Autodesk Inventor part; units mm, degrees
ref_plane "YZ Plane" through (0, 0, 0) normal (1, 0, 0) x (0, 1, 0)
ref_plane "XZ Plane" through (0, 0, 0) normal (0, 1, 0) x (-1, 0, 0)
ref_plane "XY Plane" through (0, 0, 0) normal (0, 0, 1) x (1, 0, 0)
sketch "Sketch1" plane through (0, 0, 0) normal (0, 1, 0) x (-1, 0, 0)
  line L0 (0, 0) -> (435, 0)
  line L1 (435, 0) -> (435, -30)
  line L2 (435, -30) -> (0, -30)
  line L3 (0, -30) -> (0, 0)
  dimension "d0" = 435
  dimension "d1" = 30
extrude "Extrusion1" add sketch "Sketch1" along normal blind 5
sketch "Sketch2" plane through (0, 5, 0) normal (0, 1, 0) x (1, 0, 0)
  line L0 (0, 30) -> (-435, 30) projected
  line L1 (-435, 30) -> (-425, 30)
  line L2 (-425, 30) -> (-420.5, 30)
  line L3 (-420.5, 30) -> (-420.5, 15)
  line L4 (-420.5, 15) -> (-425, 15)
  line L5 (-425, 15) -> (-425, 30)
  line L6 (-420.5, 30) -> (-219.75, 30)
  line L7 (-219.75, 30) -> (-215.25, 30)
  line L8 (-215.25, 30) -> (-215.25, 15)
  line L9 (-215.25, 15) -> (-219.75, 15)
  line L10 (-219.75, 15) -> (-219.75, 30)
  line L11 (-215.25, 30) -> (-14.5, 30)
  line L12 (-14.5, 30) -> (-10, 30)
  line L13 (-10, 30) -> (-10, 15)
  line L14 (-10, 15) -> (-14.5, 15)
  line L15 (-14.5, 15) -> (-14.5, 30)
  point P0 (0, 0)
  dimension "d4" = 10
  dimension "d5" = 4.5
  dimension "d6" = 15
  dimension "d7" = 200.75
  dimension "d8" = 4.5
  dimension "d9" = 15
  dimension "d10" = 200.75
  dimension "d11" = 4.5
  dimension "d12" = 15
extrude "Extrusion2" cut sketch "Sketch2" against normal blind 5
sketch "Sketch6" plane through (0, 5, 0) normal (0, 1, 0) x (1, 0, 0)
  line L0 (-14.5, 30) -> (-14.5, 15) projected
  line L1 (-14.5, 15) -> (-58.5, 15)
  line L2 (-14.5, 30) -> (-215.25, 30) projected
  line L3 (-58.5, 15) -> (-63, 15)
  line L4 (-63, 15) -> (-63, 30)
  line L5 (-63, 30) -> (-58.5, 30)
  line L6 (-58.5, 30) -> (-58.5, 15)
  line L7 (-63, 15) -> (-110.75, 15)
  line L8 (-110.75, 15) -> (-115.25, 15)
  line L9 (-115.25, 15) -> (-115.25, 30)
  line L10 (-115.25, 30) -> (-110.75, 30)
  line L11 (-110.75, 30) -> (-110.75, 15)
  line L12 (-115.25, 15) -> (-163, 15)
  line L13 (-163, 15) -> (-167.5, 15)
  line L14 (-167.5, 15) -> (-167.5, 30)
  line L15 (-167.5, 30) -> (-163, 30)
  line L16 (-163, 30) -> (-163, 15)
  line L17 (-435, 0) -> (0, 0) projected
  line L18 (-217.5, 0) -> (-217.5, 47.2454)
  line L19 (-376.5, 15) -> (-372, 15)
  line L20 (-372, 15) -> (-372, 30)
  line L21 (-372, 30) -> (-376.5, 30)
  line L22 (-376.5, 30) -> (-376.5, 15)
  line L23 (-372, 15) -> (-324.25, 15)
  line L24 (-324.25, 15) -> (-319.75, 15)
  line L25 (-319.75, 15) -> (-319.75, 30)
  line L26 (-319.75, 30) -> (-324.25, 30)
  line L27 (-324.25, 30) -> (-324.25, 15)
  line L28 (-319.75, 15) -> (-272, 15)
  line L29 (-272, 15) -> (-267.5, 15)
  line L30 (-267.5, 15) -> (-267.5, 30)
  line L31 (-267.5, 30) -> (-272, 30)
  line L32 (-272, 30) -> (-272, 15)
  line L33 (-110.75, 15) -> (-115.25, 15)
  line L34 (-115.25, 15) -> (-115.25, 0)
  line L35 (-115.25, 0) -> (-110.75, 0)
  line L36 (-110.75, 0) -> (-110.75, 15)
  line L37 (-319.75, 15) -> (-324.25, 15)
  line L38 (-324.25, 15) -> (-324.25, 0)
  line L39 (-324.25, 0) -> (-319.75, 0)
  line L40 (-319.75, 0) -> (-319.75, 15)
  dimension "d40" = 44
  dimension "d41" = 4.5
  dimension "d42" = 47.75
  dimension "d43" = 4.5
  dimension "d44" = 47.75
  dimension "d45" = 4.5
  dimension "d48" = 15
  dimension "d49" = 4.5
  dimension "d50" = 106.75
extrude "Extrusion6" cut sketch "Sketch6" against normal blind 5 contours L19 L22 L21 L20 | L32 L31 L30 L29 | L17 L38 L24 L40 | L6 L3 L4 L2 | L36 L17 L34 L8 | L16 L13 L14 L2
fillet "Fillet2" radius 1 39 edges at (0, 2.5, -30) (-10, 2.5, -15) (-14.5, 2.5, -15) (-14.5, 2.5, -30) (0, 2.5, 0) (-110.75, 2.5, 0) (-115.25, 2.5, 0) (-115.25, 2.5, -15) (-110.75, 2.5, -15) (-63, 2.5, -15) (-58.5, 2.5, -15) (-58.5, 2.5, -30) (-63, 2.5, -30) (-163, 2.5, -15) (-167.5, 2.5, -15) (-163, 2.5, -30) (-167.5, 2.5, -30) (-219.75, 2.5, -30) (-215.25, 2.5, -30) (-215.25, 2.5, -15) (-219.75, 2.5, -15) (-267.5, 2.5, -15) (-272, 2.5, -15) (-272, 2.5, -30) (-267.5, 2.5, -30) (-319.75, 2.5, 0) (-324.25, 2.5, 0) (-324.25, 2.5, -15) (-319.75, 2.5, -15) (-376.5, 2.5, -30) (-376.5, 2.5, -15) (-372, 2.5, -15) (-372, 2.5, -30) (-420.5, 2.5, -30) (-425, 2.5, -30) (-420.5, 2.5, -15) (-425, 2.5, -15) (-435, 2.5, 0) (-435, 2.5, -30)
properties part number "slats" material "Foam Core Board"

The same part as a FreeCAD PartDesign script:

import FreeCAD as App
import Part
import Sketcher
Q = App.Units.Quantity


def edges_at(feature, points):
    """Names of the edges that pass closest to the given points."""
    edges = feature.Shape.Edges
    near = lambda p: min(range(len(edges)), key=lambda i: edges[i].distToShape(Part.Vertex(*p))[0])
    return sorted({f"Edge{near(p) + 1}" for p in points})


def add_polygon(sketch, points):
    """Adds a closed chain of lines whose ends are joined by coincident constraints."""
    first, n = sketch.GeometryCount, len(points)
    for a, b in zip(points, points[1:] + points[:1]):
        sketch.addGeometry(Part.LineSegment(App.Vector(*a, 0), App.Vector(*b, 0)), False)
    for i in range(n):
        sketch.addConstraint(Sketcher.Constraint("Coincident", first + i, 2, first + (i + 1) % n, 1))

doc = App.newDocument("Part")
params = doc.addObject("Spreadsheet::Sheet", "Params")
for row, (alias, value) in enumerate([
    ("sketch1_width", "435 mm"),
    ("sketch1_height", "30 mm"),
    ("pad1_length", "5 mm"),
    ("sketch2_height", "15 mm"),
    ("sketch2_width", "4.5 mm"),
    ("pocket1_length", "5 mm"),
    ("sketch3_height", "15 mm"),
    ("sketch3_width", "4.5 mm"),
    ("pocket2_length", "5 mm"),
    ("fillet_radius", "1 mm"),
], start=1):
    params.set(f"A{row}", alias)
    params.set(f"B{row}", "=" + value)
    params.setAlias(f"B{row}", alias)

body = doc.addObject("PartDesign::Body", "Body")

sketch1 = doc.addObject("Sketcher::SketchObject", "Sketch")
body.addObject(sketch1)
sketch1.AttachmentSupport = (doc.XZ_Plane, [""])
sketch1.MapMode = "FlatFace"
add_polygon(sketch1, [(-435, 0), (0, 0), (0, -30), (-435, -30)])
sketch1.addConstraint([
    Sketcher.Constraint("Horizontal", 0),
    Sketcher.Constraint("Vertical", 1),
    Sketcher.Constraint("Horizontal", 2),
    Sketcher.Constraint("Vertical", 3),
    Sketcher.Constraint("Coincident", 0, 2, -1, 1),
    Sketcher.Constraint("DistanceX", 0, 1, 0, 2, Q("435 mm")),
    Sketcher.Constraint("DistanceY", 1, 2, 1, 1, Q("30 mm")),
])
sketch1.setExpression("Constraints[9]", "Params.sketch1_width")
sketch1.setExpression("Constraints[10]", "Params.sketch1_height")
pad1 = doc.addObject("PartDesign::Pad", "Pad")
body.addObject(pad1)
pad1.Profile = sketch1
pad1.setExpression("Length", "Params.pad1_length")
pad1.Reversed = True

sketch2 = doc.addObject("Sketcher::SketchObject", "Sketch001")
body.addObject(sketch2)
sketch2.AttachmentSupport = (doc.XZ_Plane, [""])
sketch2.MapMode = "FlatFace"
sketch2.AttachmentOffset = App.Placement(App.Vector(0, 0, -5), App.Rotation())
add_polygon(sketch2, [(-10, -15), (-10, -30), (-14.5, -30), (-14.5, -15)])
add_polygon(sketch2, [(-420.5, -15), (-420.5, -30), (-425, -30), (-425, -15)])
add_polygon(sketch2, [(-215.25, -15), (-215.25, -30), (-219.75, -30), (-219.75, -15)])
sketch2.addConstraint([
    Sketcher.Constraint("Vertical", 0),
    Sketcher.Constraint("Horizontal", 1),
    Sketcher.Constraint("Vertical", 2),
    Sketcher.Constraint("Horizontal", 3),
    Sketcher.Constraint("Vertical", 4),
    Sketcher.Constraint("Horizontal", 5),
    Sketcher.Constraint("Vertical", 6),
    Sketcher.Constraint("Horizontal", 7),
    Sketcher.Constraint("Vertical", 8),
    Sketcher.Constraint("Horizontal", 9),
    Sketcher.Constraint("Vertical", 10),
    Sketcher.Constraint("Horizontal", 11),
    Sketcher.Constraint("Horizontal", 1, 2, 4, 2),
    Sketcher.Constraint("Horizontal", 3, 2, 6, 2),
    Sketcher.Constraint("Horizontal", 5, 2, 8, 2),
    Sketcher.Constraint("Horizontal", 7, 2, 10, 2),
    Sketcher.Constraint("Equal", 3, 5),
    Sketcher.Constraint("Equal", 7, 9),
    Sketcher.Constraint("DistanceY", 0, 2, 0, 1, Q("15 mm")),
    Sketcher.Constraint("DistanceX", 1, 2, 1, 1, Q("4.5 mm")),
    Sketcher.Constraint("DistanceX", 0, 2, -1, 1, Q("10 mm")),
    Sketcher.Constraint("DistanceY", 2, 2, -1, 1, Q("15 mm")),
    Sketcher.Constraint("DistanceX", 8, 2, 1, 2, Q("200.75 mm")),
    Sketcher.Constraint("DistanceX", 4, 2, 9, 2, Q("200.75 mm")),
])
sketch2.setExpression("Constraints[30]", "Params.sketch2_height")
sketch2.setExpression("Constraints[31]", "Params.sketch2_width")
pocket1 = doc.addObject("PartDesign::Pocket", "Pocket")
body.addObject(pocket1)
pocket1.Profile = sketch2
pocket1.setExpression("Length", "Params.pocket1_length")
pocket1.Reversed = True

sketch3 = doc.addObject("Sketcher::SketchObject", "Sketch002")
body.addObject(sketch3)
sketch3.AttachmentSupport = (doc.XZ_Plane, [""])
sketch3.MapMode = "FlatFace"
sketch3.AttachmentOffset = App.Placement(App.Vector(0, 0, -5), App.Rotation())
add_polygon(sketch3, [(-376.5, -15), (-372, -15), (-372, -30), (-376.5, -30)])
add_polygon(sketch3, [(-272, -30), (-272, -15), (-267.5, -15), (-267.5, -30)])
add_polygon(sketch3, [(-324.25, 0), (-319.75, 0), (-319.75, -15), (-324.25, -15)])
add_polygon(sketch3, [(-58.5, -15), (-58.5, -30), (-63, -30), (-63, -15)])
add_polygon(sketch3, [(-110.75, 0), (-110.75, -15), (-115.25, -15), (-115.25, 0)])
add_polygon(sketch3, [(-163, -15), (-163, -30), (-167.5, -30), (-167.5, -15)])
sketch3.addConstraint([
    Sketcher.Constraint("Horizontal", 0),
    Sketcher.Constraint("Vertical", 1),
    Sketcher.Constraint("Horizontal", 2),
    Sketcher.Constraint("Vertical", 3),
    Sketcher.Constraint("Vertical", 4),
    Sketcher.Constraint("Horizontal", 5),
    Sketcher.Constraint("Vertical", 6),
    Sketcher.Constraint("Horizontal", 7),
    Sketcher.Constraint("Horizontal", 8),
    Sketcher.Constraint("Vertical", 9),
    Sketcher.Constraint("Horizontal", 10),
    Sketcher.Constraint("Vertical", 11),
    Sketcher.Constraint("Vertical", 12),
    Sketcher.Constraint("Horizontal", 13),
    Sketcher.Constraint("Vertical", 14),
    Sketcher.Constraint("Horizontal", 15),
    Sketcher.Constraint("Vertical", 16),
    Sketcher.Constraint("Horizontal", 17),
    Sketcher.Constraint("Vertical", 18),
    Sketcher.Constraint("Horizontal", 19),
    Sketcher.Constraint("Vertical", 20),
    Sketcher.Constraint("Horizontal", 21),
    Sketcher.Constraint("Vertical", 22),
    Sketcher.Constraint("Horizontal", 23),
    Sketcher.Constraint("PointOnObject", 8, 2, -1),
    Sketcher.Constraint("PointOnObject", 18, 2, -1),
    Sketcher.Constraint("Horizontal", 3, 2, 4, 2),
    Sketcher.Constraint("Horizontal", 2, 2, 6, 2),
    Sketcher.Constraint("Horizontal", 5, 2, 9, 2),
    Sketcher.Constraint("Horizontal", 7, 2, 12, 2),
    Sketcher.Constraint("Horizontal", 10, 2, 14, 2),
    Sketcher.Constraint("Horizontal", 15, 2, 16, 2),
    Sketcher.Constraint("Horizontal", 13, 2, 20, 2),
    Sketcher.Constraint("Horizontal", 17, 2, 22, 2),
    Sketcher.Constraint("Equal", 2, 5),
    Sketcher.Constraint("Equal", 7, 8),
    Sketcher.Constraint("Equal", 10, 13),
    Sketcher.Constraint("Equal", 15, 17),
    Sketcher.Constraint("Equal", 19, 21),
    Sketcher.Constraint("Equal", 6, 9),
    Sketcher.Constraint("DistanceY", 1, 2, 1, 1, Q("15 mm")),
    Sketcher.Constraint("DistanceX", 0, 1, 0, 2, Q("4.5 mm")),
    Sketcher.Constraint("DistanceX", 8, 2, 4, 2, Q("47.75 mm")),
    Sketcher.Constraint("DistanceX", 0, 2, 10, 2, Q("47.75 mm")),
    Sketcher.Constraint("DistanceX", 16, 2, 14, 2, Q("47.75 mm")),
    Sketcher.Constraint("DistanceX", 20, 2, 17, 2, Q("47.75 mm")),
    Sketcher.Constraint("DistanceX", 0, 2, -1, 1, Q("372 mm")),
    Sketcher.Constraint("DistanceX", 13, 2, -1, 1, Q("63 mm")),
])
sketch3.setExpression("Constraints[64]", "Params.sketch3_height")
sketch3.setExpression("Constraints[65]", "Params.sketch3_width")
pocket2 = doc.addObject("PartDesign::Pocket", "Pocket001")
body.addObject(pocket2)
pocket2.Profile = sketch3
pocket2.setExpression("Length", "Params.pocket2_length")
pocket2.Reversed = True
doc.recompute()

fillet = doc.addObject("PartDesign::Fillet", "Fillet")
body.addObject(fillet)
fillet.Base = (pocket2, edges_at(pocket2, [
    (0, 2.5, -30),
    (-10, 2.5, -15),
    (-14.5, 2.5, -15),
    (-14.5, 2.5, -30),
    (0, 2.5, 0),
    (-110.75, 2.5, 0),
    (-115.25, 2.5, 0),
    (-115.25, 2.5, -15),
    (-110.75, 2.5, -15),
    (-63, 2.5, -15),
    (-58.5, 2.5, -15),
    (-58.5, 2.5, -30),
    (-63, 2.5, -30),
    (-163, 2.5, -15),
    (-167.5, 2.5, -15),
    (-163, 2.5, -30),
    (-167.5, 2.5, -30),
    (-219.75, 2.5, -30),
    (-215.25, 2.5, -30),
    (-215.25, 2.5, -15),
    (-219.75, 2.5, -15),
    (-267.5, 2.5, -15),
    (-272, 2.5, -15),
    (-272, 2.5, -30),
    (-267.5, 2.5, -30),
    (-319.75, 2.5, 0),
    (-324.25, 2.5, 0),
    (-324.25, 2.5, -15),
    (-319.75, 2.5, -15),
    (-376.5, 2.5, -30),
    (-376.5, 2.5, -15),
    (-372, 2.5, -15),
    (-372, 2.5, -30),
    (-420.5, 2.5, -30),
    (-425, 2.5, -30),
    (-420.5, 2.5, -15),
    (-425, 2.5, -15),
    (-435, 2.5, 0),
    (-435, 2.5, -30),
]))
fillet.setExpression("Radius", "Params.fillet_radius")

doc.recompute()
